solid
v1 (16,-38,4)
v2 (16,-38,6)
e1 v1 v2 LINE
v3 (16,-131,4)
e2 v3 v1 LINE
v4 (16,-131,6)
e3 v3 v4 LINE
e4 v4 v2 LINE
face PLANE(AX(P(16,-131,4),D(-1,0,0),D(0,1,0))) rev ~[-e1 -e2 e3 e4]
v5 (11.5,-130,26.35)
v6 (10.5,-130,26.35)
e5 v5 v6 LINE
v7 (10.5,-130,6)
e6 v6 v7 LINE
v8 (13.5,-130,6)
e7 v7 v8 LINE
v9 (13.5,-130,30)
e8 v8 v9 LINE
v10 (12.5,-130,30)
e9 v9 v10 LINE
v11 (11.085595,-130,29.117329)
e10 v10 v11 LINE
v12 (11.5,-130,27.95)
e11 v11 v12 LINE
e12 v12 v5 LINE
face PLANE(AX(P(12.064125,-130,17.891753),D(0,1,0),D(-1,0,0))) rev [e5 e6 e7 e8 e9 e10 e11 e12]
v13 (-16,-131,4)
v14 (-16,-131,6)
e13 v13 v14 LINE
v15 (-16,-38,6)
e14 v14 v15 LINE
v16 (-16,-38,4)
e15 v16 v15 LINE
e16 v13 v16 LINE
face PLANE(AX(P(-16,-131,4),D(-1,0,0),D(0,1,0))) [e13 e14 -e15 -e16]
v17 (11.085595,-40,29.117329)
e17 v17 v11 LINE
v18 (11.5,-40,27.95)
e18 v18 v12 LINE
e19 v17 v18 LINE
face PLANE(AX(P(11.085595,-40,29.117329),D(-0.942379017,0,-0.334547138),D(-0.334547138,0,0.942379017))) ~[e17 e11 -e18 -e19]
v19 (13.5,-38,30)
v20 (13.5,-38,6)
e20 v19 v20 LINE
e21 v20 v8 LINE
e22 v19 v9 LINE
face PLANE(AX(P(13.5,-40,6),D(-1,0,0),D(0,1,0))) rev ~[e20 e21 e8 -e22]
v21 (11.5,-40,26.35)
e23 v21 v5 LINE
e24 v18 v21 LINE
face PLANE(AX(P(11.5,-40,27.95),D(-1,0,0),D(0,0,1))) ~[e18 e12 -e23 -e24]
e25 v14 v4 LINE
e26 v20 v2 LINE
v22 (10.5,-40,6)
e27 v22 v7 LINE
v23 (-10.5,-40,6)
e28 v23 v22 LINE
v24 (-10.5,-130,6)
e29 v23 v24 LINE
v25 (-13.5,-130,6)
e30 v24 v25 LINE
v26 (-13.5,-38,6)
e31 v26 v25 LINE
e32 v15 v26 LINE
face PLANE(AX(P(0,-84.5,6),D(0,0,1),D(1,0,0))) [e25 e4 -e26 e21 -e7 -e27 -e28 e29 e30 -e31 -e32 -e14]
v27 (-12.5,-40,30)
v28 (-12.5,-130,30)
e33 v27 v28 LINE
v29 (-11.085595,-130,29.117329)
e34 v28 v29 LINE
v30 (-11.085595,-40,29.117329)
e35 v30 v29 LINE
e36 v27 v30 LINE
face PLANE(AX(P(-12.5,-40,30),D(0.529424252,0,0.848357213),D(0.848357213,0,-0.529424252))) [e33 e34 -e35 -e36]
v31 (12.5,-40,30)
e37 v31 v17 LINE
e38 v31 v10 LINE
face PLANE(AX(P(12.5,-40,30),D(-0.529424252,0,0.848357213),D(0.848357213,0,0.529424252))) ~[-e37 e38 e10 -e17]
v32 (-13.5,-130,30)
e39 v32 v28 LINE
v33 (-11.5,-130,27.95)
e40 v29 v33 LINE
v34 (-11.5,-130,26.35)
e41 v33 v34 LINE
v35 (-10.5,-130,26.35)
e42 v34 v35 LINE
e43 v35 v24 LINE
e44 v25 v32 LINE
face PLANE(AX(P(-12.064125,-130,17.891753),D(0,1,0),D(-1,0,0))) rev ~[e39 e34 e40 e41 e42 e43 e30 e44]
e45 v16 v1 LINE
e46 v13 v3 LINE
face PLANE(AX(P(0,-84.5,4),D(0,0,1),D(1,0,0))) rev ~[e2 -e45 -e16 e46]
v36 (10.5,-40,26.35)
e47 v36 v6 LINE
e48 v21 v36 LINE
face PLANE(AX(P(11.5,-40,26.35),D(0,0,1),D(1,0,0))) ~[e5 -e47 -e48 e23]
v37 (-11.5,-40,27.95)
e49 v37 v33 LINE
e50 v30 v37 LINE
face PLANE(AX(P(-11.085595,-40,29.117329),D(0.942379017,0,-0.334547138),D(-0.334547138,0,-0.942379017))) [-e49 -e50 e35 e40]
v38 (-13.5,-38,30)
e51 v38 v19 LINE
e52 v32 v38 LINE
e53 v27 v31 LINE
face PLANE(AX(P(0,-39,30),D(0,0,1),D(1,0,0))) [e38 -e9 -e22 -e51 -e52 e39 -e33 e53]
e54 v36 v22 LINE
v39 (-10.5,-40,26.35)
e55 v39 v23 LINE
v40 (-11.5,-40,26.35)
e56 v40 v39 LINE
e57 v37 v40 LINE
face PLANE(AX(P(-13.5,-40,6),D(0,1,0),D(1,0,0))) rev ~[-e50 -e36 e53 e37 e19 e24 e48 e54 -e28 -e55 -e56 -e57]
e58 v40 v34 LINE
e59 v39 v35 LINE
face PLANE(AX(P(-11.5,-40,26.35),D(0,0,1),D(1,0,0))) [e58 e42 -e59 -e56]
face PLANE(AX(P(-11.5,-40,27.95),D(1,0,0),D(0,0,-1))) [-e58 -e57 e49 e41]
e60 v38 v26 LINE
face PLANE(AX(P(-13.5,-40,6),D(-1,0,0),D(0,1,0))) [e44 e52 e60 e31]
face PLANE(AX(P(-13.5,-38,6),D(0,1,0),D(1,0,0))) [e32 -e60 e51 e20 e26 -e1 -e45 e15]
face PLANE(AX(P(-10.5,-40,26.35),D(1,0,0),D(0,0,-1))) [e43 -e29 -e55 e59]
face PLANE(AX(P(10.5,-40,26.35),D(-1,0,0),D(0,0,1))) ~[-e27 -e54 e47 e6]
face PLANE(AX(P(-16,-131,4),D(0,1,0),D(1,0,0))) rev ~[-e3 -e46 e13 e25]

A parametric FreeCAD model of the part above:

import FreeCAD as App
import Part
import Sketcher


def add_polygon(sketch, points):
    """Adds a closed chain of lines whose ends are joined by coincident constraints."""
    first, n = sketch.GeometryCount, len(points)
    for a, b in zip(points, points[1:] + points[:1]):
        sketch.addGeometry(Part.LineSegment(App.Vector(*a, 0), App.Vector(*b, 0)), False)
    for i in range(n):
        sketch.addConstraint(Sketcher.Constraint("Coincident", first + i, 2, first + (i + 1) % n, 1))

doc = App.newDocument("Part")
body = doc.addObject("PartDesign::Body", "Body")

# Sketch on XY plane
sketch1 = body.newObject("Sketcher::SketchObject", "Sketch")
sketch1.AttachmentSupport = (doc.getObject("XY_Plane"), [""])
sketch1.MapMode = "FlatFace"
add_polygon(sketch1, [(-16, -38), (-16, -131), (16, -131), (16, -38)])  # lines 0-3
sketch1.addConstraint(Sketcher.Constraint("Vertical", 0))
sketch1.addConstraint(Sketcher.Constraint("Horizontal", 1))
sketch1.addConstraint(Sketcher.Constraint("Vertical", 2))
sketch1.addConstraint(Sketcher.Constraint("Horizontal", 3))
sketch1.addConstraint(Sketcher.Constraint("DistanceX", 1, 1, 1, 2, 32.0))
sketch1.addConstraint(Sketcher.Constraint("DistanceY", 0, 2, 0, 1, 93.0))
sketch1.addConstraint(Sketcher.Constraint("DistanceX", 0, 2, -1, 1, 16.0))
sketch1.addConstraint(Sketcher.Constraint("DistanceY", 0, 2, -1, 1, 131.0))
pad1 = body.newObject("PartDesign::Pad", "Pad")
pad1.Profile = sketch1
pad1.Length = 2

# Sketch on XZ plane
sketch2 = body.newObject("Sketcher::SketchObject", "Sketch001")
sketch2.AttachmentSupport = (doc.getObject("XZ_Plane"), [""])
sketch2.MapMode = "FlatFace"
sketch2.AttachmentOffset = App.Placement(App.Vector(0, 0, 40), App.Rotation())
add_polygon(sketch2, [(-13.5, 26), (-13.5, 2), (-10.5, 2), (-10.5, 22.35), (-11.5, 22.35), (-11.5, 23.95), (-11.085595, 25.117329), (-12.5, 26)])  # lines 0-7
sketch2.addConstraint(Sketcher.Constraint("Vertical", 0))
sketch2.addConstraint(Sketcher.Constraint("Horizontal", 1))
sketch2.addConstraint(Sketcher.Constraint("Vertical", 2))
sketch2.addConstraint(Sketcher.Constraint("Horizontal", 3))
sketch2.addConstraint(Sketcher.Constraint("Vertical", 4))
sketch2.addConstraint(Sketcher.Constraint("Horizontal", 7))
sketch2.addConstraint(Sketcher.Constraint("Equal", 3, 7))
sketch2.addConstraint(Sketcher.Constraint("DistanceX", 1, 1, 1, 2, 3.0))
sketch2.addConstraint(Sketcher.Constraint("DistanceX", 3, 2, 3, 1, 1.0))
sketch2.addConstraint(Sketcher.Constraint("DistanceY", 0, 2, 0, 1, 24.0))
sketch2.addConstraint(Sketcher.Constraint("DistanceY", 4, 1, 4, 2, 1.6))
sketch2.addConstraint(Sketcher.Constraint("DistanceY", -1, 1, 0, 2, 2.0))
sketch2.addConstraint(Sketcher.Constraint("DistanceY", 2, 1, 2, 2, 20.35))
sketch2.addConstraint(Sketcher.Constraint("DistanceX", 0, 2, -1, 1, 13.5))
sketch2.addConstraint(Sketcher.Constraint("Distance", 6, 1.667228))
sketch2.addConstraint(Sketcher.Constraint("DistanceY", -1, 1, 5, 2, 25.117329))
pad2 = body.newObject("PartDesign::Pad", "Pad001")
pad2.Profile = sketch2
pad2.Length = 90
doc.recompute()

mirrored = body.newObject("PartDesign::Mirrored", "Mirrored")
mirrored.Originals = [pad2]
mirrored.MirrorPlane = (doc.getObject("YZ_Plane"), [""])
body.Tip = mirrored

# Sketch on XY plane
sketch3 = body.newObject("Sketcher::SketchObject", "Sketch002")
sketch3.AttachmentSupport = (doc.getObject("XY_Plane"), [""])
sketch3.MapMode = "FlatFace"
sketch3.AttachmentOffset = App.Placement(App.Vector(0, 0, 2), App.Rotation())
add_polygon(sketch3, [(-13.5, -38), (-13.5, -40), (13.5, -40), (13.5, -38)])  # lines 0-3
sketch3.addConstraint(Sketcher.Constraint("Vertical", 0))
sketch3.addConstraint(Sketcher.Constraint("Horizontal", 1))
sketch3.addConstraint(Sketcher.Constraint("Vertical", 2))
sketch3.addConstraint(Sketcher.Constraint("Horizontal", 3))
sketch3.addConstraint(Sketcher.Constraint("DistanceX", 1, 1, 1, 2, 27.0))
sketch3.addConstraint(Sketcher.Constraint("DistanceY", 0, 2, 0, 1, 2.0))
sketch3.addConstraint(Sketcher.Constraint("DistanceY", 0, 2, -1, 1, 40.0))
sketch3.addConstraint(Sketcher.Constraint("DistanceX", 0, 2, -1, 1, 13.5))
pad3 = body.newObject("PartDesign::Pad", "Pad002")
pad3.Profile = sketch3
pad3.Length = 3

# Sketch on XY plane
sketch4 = body.newObject("Sketcher::SketchObject", "Sketch003")
sketch4.AttachmentSupport = (doc.getObject("XY_Plane"), [""])
sketch4.MapMode = "FlatFace"
sketch4.AttachmentOffset = App.Placement(App.Vector(0, 0, 2), App.Rotation())
add_polygon(sketch4, [(-13.5, -38), (-13.5, -40), (13.5, -40), (13.5, -38)])  # lines 0-3
sketch4.addConstraint(Sketcher.Constraint("Vertical", 0))
sketch4.addConstraint(Sketcher.Constraint("Horizontal", 1))
sketch4.addConstraint(Sketcher.Constraint("Vertical", 2))
sketch4.addConstraint(Sketcher.Constraint("Horizontal", 3))
sketch4.addConstraint(Sketcher.Constraint("DistanceX", 1, 1, 1, 2, 27.0))
sketch4.addConstraint(Sketcher.Constraint("DistanceY", 0, 2, 0, 1, 2.0))
sketch4.addConstraint(Sketcher.Constraint("DistanceY", 0, 2, -1, 1, 40.0))
sketch4.addConstraint(Sketcher.Constraint("DistanceX", 0, 2, -1, 1, 13.5))
pad4 = body.newObject("PartDesign::Pad", "Pad003")
pad4.Profile = sketch4
pad4.Length = 24
body2 = doc.addObject("PartDesign::Body", "Body001")
doc.recompute()

body.Placement = App.Placement(App.Vector(0, 0, 4), App.Rotation(App.Vector(0, 0, 1), 0))
boolean = body2.newObject("PartDesign::Boolean", "Boolean")
boolean.Type = "Fuse"
boolean.addObjects([body])

doc.recompute()
